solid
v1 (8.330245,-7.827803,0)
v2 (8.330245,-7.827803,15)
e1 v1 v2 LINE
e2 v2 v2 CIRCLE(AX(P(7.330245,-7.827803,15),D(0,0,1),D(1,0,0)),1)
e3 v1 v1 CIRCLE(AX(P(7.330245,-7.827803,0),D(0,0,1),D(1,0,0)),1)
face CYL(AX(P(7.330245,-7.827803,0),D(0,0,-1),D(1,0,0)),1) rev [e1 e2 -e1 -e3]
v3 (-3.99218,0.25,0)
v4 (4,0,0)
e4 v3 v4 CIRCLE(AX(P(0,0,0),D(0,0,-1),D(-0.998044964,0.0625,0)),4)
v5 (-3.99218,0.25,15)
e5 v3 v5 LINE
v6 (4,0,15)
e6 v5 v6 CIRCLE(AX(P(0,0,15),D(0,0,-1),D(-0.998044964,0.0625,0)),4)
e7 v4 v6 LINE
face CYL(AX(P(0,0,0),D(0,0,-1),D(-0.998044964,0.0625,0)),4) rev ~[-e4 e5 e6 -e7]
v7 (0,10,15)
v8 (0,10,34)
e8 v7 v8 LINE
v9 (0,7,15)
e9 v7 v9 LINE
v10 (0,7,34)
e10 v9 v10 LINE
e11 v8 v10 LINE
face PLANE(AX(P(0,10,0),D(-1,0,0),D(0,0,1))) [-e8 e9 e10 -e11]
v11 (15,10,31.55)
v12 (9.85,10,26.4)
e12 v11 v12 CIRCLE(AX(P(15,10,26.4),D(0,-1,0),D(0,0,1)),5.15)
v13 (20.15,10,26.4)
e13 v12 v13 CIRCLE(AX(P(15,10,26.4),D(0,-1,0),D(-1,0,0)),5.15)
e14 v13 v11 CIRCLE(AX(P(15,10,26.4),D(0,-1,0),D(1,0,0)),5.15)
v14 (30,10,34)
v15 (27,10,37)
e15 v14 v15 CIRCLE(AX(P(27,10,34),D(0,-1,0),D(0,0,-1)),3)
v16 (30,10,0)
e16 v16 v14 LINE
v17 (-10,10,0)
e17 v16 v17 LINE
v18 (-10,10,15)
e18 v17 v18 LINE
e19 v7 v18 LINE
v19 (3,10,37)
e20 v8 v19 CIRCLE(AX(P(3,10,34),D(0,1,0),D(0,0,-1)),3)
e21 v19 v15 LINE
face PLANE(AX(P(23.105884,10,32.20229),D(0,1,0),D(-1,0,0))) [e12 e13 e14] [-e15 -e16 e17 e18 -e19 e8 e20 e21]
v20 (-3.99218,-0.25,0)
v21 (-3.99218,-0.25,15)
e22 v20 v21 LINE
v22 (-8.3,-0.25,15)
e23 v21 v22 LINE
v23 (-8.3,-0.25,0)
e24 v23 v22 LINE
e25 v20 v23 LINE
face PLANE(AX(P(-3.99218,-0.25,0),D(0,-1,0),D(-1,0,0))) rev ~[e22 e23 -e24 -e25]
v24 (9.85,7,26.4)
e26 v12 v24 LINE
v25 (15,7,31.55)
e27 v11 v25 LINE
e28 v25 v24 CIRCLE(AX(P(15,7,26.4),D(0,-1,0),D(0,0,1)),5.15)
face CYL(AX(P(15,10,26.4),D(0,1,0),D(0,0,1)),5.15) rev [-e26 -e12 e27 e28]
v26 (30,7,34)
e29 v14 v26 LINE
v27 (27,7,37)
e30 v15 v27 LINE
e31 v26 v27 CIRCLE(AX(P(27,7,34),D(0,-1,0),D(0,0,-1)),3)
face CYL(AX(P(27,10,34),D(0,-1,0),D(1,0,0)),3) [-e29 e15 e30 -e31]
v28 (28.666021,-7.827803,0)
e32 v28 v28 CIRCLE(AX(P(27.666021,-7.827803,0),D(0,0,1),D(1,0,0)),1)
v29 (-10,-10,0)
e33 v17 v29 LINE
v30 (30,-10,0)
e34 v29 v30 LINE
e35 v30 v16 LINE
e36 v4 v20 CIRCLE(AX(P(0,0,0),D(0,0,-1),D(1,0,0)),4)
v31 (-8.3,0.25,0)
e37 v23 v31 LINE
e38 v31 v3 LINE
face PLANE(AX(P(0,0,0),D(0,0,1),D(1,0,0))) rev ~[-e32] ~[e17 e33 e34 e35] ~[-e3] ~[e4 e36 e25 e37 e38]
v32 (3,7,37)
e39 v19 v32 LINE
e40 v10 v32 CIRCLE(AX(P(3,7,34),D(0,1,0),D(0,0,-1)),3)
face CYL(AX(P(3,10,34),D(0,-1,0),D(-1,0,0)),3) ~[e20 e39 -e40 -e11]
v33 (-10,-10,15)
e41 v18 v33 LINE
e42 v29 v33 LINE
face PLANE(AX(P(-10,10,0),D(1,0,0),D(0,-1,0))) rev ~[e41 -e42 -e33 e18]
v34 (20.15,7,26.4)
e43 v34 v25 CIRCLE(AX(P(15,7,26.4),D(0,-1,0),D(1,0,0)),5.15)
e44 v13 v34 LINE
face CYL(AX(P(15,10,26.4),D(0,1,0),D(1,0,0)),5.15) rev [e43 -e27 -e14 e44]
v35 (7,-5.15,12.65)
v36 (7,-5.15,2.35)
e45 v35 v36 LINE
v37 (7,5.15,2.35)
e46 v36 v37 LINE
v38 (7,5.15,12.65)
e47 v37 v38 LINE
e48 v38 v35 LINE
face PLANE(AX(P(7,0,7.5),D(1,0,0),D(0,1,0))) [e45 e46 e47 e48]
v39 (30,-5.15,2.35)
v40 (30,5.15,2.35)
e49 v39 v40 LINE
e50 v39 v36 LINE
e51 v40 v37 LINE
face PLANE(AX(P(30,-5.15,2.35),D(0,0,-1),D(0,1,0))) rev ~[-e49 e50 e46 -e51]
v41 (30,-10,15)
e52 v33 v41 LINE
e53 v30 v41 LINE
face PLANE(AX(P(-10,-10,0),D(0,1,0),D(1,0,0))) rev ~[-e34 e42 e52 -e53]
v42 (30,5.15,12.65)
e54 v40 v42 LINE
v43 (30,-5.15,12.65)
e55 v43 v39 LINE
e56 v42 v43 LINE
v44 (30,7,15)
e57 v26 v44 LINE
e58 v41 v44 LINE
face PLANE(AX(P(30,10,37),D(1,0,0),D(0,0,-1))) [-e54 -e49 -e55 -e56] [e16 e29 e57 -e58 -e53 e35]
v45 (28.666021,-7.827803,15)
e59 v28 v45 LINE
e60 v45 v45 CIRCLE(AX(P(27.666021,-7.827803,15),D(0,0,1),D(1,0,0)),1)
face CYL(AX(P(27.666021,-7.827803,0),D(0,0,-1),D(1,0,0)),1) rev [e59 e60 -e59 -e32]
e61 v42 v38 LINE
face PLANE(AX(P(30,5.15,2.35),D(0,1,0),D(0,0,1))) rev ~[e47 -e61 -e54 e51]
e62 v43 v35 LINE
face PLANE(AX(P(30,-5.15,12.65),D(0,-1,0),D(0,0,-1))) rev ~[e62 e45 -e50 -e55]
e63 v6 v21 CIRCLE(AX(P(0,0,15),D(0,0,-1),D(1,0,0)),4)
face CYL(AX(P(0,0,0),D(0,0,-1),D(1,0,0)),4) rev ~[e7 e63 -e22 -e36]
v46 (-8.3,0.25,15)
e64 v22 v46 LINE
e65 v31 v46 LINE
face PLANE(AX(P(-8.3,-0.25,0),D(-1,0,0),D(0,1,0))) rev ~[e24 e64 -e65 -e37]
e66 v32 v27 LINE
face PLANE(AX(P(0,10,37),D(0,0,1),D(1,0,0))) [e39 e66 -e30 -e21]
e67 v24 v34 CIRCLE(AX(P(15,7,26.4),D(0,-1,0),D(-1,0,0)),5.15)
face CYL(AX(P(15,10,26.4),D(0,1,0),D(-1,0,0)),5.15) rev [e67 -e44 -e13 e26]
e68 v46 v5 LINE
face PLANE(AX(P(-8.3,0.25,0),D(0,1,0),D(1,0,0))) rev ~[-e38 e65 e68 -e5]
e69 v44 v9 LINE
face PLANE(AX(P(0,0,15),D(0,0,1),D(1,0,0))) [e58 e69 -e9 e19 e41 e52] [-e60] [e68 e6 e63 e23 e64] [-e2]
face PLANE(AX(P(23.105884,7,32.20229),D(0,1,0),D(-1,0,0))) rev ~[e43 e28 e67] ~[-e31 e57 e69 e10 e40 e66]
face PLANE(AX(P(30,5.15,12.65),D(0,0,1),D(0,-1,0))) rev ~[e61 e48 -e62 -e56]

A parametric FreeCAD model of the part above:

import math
import FreeCAD as App
import Part
import Sketcher

V = App.Vector
Q = App.Units.Quantity


def edges_at(feature, points):
    """Names of the edges that pass closest to the given points."""
    edges = feature.Shape.Edges
    near = lambda p: min(range(len(edges)), key=lambda i: edges[i].distToShape(Part.Vertex(*p))[0])
    return sorted({f"Edge{near(p) + 1}" for p in points})


def add_polygon(sketch, points):
    """Adds a closed chain of lines whose ends are joined by coincident constraints."""
    first, n = sketch.GeometryCount, len(points)
    for a, b in zip(points, points[1:] + points[:1]):
        sketch.addGeometry(Part.LineSegment(App.Vector(*a, 0), App.Vector(*b, 0)), False)
    for i in range(n):
        sketch.addConstraint(Sketcher.Constraint("Coincident", first + i, 2, first + (i + 1) % n, 1))

doc = App.newDocument("Part")
body = doc.addObject("PartDesign::Body", "Body")

# Sketch on XY plane
sketch1 = body.newObject("Sketcher::SketchObject", "Sketch")
sketch1.AttachmentSupport = (doc.getObject("XY_Plane"), [""])
sketch1.MapMode = "FlatFace"
add_polygon(sketch1, [(-10, 10), (-10, -10), (30, -10), (30, 10)])  # lines 0-3
sketch1.addGeometry(Part.Circle(V(7.3, -7.8, 0), V(0, 0, 1), 1), False)  # 4
sketch1.addGeometry(Part.Circle(V(27.7, -7.8, 0), V(0, 0, 1), 1), False)  # 5
sketch1.addGeometry(Part.LineSegment(V(-8.3, 0.2, 0), V(-4, 0.2, 0)), False)  # 6
sketch1.addGeometry(Part.ArcOfCircle(Part.Circle(V(0, 0, 0), V(0, 0, 1), 4), math.radians(0), math.radians(176)), False)  # 7
sketch1.addGeometry(Part.ArcOfCircle(Part.Circle(V(0, 0, 0), V(0, 0, 1), 4), math.radians(-176), math.radians(0)), False)  # 8
sketch1.addGeometry(Part.LineSegment(V(-4, -0.2, 0), V(-8.3, -0.2, 0)), False)  # 9
sketch1.addGeometry(Part.LineSegment(V(-8.3, -0.2, 0), V(-8.3, 0.2, 0)), False)  # 10
sketch1.addConstraint(Sketcher.Constraint("Coincident", 6, 2, 7, 2))
sketch1.addConstraint(Sketcher.Constraint("Tangent", 7, 1, 8, 2))
sketch1.addConstraint(Sketcher.Constraint("Coincident", 8, 1, 9, 1))
sketch1.addConstraint(Sketcher.Constraint("Coincident", 9, 2, 10, 1))
sketch1.addConstraint(Sketcher.Constraint("Coincident", 10, 2, 6, 1))
sketch1.addConstraint(Sketcher.Constraint("Vertical", 0))
sketch1.addConstraint(Sketcher.Constraint("Horizontal", 1))
sketch1.addConstraint(Sketcher.Constraint("Vertical", 2))
sketch1.addConstraint(Sketcher.Constraint("Horizontal", 3))
sketch1.addConstraint(Sketcher.Constraint("Horizontal", 6))
sketch1.addConstraint(Sketcher.Constraint("Horizontal", 9))
sketch1.addConstraint(Sketcher.Constraint("Vertical", 10))
sketch1.addConstraint(Sketcher.Constraint("Coincident", 7, 3, -1, 1))
sketch1.addConstraint(Sketcher.Constraint("Equal", 4, 5))
sketch1.addConstraint(Sketcher.Constraint("Equal", 7, 8))
sketch1.addConstraint(Sketcher.Constraint("PointOnObject", 7, 1, -1))
sketch1.addConstraint(Sketcher.Constraint("Horizontal", 4, 3, 5, 3))
sketch1.addConstraint(Sketcher.Constraint("Vertical", 6, 2, 8, 1))
sketch1.addConstraint(Sketcher.Constraint("Diameter", 4, Q("2 mm")))
sketch1.addConstraint(Sketcher.Constraint("Radius", 7, Q("4 mm")))
sketch1.addConstraint(Sketcher.Constraint("DistanceX", 1, 1, 1, 2, Q("40 mm")))
sketch1.addConstraint(Sketcher.Constraint("DistanceY", 0, 2, 0, 1, Q("20 mm")))
sketch1.addConstraint(Sketcher.Constraint("DistanceY", 10, 1, 10, 2, Q("0.5 mm")))
sketch1.addConstraint(Sketcher.Constraint("DistanceX", 0, 2, -1, 1, Q("10 mm")))
sketch1.addConstraint(Sketcher.Constraint("DistanceY", 0, 2, -1, 1, Q("10 mm")))
sketch1.addConstraint(Sketcher.Constraint("DistanceX", 9, 2, -1, 1, Q("8.3 mm")))
sketch1.addConstraint(Sketcher.Constraint("DistanceX", -1, 1, 5, 3, Q("27.666021 mm")))
sketch1.addConstraint(Sketcher.Constraint("DistanceX", -1, 1, 4, 3, Q("7.330245 mm")))
sketch1.addConstraint(Sketcher.Constraint("DistanceY", 4, 3, -1, 1, Q("7.827803 mm")))
pad1 = body.newObject("PartDesign::Pad", "Pad")
pad1.Profile = sketch1
pad1.Length = 15

# Sketch on YZ plane
sketch2 = body.newObject("Sketcher::SketchObject", "Sketch001")
sketch2.AttachmentSupport = (doc.getObject("YZ_Plane"), [""])
sketch2.MapMode = "FlatFace"
sketch2.AttachmentOffset = App.Placement(V(0, 0, 30), App.Rotation())
add_polygon(sketch2, [(-5, 13), (-5, 2), (5, 2), (5, 13)])  # lines 0-3
sketch2.addConstraint(Sketcher.Constraint("Vertical", 0))
sketch2.addConstraint(Sketcher.Constraint("Horizontal", 1))
sketch2.addConstraint(Sketcher.Constraint("Vertical", 2))
sketch2.addConstraint(Sketcher.Constraint("Horizontal", 3))
sketch2.addConstraint(Sketcher.Constraint("Equal", 3, 0))
sketch2.addConstraint(Sketcher.Constraint("DistanceX", 1, 1, 1, 2, Q("10.3 mm")))
sketch2.addConstraint(Sketcher.Constraint("DistanceX", 0, 2, -1, 1, Q("5.15 mm")))
sketch2.addConstraint(Sketcher.Constraint("DistanceY", -1, 1, 0, 2, Q("2.35 mm")))
pocket1 = body.newObject("PartDesign::Pocket", "Pocket")
pocket1.Profile = sketch2
pocket1.Length = 23

# Sketch on XZ plane
sketch3 = body.newObject("Sketcher::SketchObject", "Sketch002")
sketch3.AttachmentSupport = (doc.getObject("XZ_Plane"), [""])
sketch3.MapMode = "FlatFace"
sketch3.AttachmentOffset = App.Placement(V(0, 0, -10), App.Rotation())
add_polygon(sketch3, [(30, 37), (30, 0), (0, 0), (0, 37)])  # lines 0-3
sketch3.addGeometry(Part.ArcOfCircle(Part.Circle(V(15, 26, 0), V(0, 0, 1), 5), math.radians(0), math.radians(90)), False)  # 4
sketch3.addGeometry(Part.ArcOfCircle(Part.Circle(V(15, 26, 0), V(0, 0, 1), 5), math.radians(90), math.radians(180)), False)  # 5
sketch3.addGeometry(Part.ArcOfCircle(Part.Circle(V(15, 26, 0), V(0, 0, 1), 5), math.radians(180), math.radians(360)), False)  # 6
sketch3.addConstraint(Sketcher.Constraint("Tangent", 4, 2, 5, 1))
sketch3.addConstraint(Sketcher.Constraint("Tangent", 5, 2, 6, 1))
sketch3.addConstraint(Sketcher.Constraint("Tangent", 6, 2, 4, 1))
sketch3.addConstraint(Sketcher.Constraint("Vertical", 0))
sketch3.addConstraint(Sketcher.Constraint("Horizontal", 1))
sketch3.addConstraint(Sketcher.Constraint("Vertical", 2))
sketch3.addConstraint(Sketcher.Constraint("Horizontal", 3))
sketch3.addConstraint(Sketcher.Constraint("Coincident", 1, 2, -1, 1))
sketch3.addConstraint(Sketcher.Constraint("Horizontal", 6, 3, 5, 2))
sketch3.addConstraint(Sketcher.Constraint("Horizontal", 5, 2, 6, 2))
sketch3.addConstraint(Sketcher.Constraint("Vertical", 6, 3, 4, 2))
sketch3.addConstraint(Sketcher.Constraint("DistanceX", 1, 2, 1, 1, Q("30 mm")))
sketch3.addConstraint(Sketcher.Constraint("DistanceY", 0, 2, 0, 1, Q("37 mm")))
sketch3.addConstraint(Sketcher.Constraint("Radius", 4, Q("5.15 mm")))
sketch3.addConstraint(Sketcher.Constraint("DistanceX", -1, 1, 4, 3, Q("15 mm")))
sketch3.addConstraint(Sketcher.Constraint("DistanceY", -1, 1, 4, 3, Q("26.4 mm")))
pad2 = body.newObject("PartDesign::Pad", "Pad001")
pad2.Profile = sketch3
pad2.Length = 3
doc.recompute()

fillet = body.newObject("PartDesign::Fillet", "Fillet")
fillet.Base = (pad2, edges_at(pad2, [(30, 8.5, 37), (0, 8.5, 37)]))
fillet.Radius = 3

doc.recompute()
